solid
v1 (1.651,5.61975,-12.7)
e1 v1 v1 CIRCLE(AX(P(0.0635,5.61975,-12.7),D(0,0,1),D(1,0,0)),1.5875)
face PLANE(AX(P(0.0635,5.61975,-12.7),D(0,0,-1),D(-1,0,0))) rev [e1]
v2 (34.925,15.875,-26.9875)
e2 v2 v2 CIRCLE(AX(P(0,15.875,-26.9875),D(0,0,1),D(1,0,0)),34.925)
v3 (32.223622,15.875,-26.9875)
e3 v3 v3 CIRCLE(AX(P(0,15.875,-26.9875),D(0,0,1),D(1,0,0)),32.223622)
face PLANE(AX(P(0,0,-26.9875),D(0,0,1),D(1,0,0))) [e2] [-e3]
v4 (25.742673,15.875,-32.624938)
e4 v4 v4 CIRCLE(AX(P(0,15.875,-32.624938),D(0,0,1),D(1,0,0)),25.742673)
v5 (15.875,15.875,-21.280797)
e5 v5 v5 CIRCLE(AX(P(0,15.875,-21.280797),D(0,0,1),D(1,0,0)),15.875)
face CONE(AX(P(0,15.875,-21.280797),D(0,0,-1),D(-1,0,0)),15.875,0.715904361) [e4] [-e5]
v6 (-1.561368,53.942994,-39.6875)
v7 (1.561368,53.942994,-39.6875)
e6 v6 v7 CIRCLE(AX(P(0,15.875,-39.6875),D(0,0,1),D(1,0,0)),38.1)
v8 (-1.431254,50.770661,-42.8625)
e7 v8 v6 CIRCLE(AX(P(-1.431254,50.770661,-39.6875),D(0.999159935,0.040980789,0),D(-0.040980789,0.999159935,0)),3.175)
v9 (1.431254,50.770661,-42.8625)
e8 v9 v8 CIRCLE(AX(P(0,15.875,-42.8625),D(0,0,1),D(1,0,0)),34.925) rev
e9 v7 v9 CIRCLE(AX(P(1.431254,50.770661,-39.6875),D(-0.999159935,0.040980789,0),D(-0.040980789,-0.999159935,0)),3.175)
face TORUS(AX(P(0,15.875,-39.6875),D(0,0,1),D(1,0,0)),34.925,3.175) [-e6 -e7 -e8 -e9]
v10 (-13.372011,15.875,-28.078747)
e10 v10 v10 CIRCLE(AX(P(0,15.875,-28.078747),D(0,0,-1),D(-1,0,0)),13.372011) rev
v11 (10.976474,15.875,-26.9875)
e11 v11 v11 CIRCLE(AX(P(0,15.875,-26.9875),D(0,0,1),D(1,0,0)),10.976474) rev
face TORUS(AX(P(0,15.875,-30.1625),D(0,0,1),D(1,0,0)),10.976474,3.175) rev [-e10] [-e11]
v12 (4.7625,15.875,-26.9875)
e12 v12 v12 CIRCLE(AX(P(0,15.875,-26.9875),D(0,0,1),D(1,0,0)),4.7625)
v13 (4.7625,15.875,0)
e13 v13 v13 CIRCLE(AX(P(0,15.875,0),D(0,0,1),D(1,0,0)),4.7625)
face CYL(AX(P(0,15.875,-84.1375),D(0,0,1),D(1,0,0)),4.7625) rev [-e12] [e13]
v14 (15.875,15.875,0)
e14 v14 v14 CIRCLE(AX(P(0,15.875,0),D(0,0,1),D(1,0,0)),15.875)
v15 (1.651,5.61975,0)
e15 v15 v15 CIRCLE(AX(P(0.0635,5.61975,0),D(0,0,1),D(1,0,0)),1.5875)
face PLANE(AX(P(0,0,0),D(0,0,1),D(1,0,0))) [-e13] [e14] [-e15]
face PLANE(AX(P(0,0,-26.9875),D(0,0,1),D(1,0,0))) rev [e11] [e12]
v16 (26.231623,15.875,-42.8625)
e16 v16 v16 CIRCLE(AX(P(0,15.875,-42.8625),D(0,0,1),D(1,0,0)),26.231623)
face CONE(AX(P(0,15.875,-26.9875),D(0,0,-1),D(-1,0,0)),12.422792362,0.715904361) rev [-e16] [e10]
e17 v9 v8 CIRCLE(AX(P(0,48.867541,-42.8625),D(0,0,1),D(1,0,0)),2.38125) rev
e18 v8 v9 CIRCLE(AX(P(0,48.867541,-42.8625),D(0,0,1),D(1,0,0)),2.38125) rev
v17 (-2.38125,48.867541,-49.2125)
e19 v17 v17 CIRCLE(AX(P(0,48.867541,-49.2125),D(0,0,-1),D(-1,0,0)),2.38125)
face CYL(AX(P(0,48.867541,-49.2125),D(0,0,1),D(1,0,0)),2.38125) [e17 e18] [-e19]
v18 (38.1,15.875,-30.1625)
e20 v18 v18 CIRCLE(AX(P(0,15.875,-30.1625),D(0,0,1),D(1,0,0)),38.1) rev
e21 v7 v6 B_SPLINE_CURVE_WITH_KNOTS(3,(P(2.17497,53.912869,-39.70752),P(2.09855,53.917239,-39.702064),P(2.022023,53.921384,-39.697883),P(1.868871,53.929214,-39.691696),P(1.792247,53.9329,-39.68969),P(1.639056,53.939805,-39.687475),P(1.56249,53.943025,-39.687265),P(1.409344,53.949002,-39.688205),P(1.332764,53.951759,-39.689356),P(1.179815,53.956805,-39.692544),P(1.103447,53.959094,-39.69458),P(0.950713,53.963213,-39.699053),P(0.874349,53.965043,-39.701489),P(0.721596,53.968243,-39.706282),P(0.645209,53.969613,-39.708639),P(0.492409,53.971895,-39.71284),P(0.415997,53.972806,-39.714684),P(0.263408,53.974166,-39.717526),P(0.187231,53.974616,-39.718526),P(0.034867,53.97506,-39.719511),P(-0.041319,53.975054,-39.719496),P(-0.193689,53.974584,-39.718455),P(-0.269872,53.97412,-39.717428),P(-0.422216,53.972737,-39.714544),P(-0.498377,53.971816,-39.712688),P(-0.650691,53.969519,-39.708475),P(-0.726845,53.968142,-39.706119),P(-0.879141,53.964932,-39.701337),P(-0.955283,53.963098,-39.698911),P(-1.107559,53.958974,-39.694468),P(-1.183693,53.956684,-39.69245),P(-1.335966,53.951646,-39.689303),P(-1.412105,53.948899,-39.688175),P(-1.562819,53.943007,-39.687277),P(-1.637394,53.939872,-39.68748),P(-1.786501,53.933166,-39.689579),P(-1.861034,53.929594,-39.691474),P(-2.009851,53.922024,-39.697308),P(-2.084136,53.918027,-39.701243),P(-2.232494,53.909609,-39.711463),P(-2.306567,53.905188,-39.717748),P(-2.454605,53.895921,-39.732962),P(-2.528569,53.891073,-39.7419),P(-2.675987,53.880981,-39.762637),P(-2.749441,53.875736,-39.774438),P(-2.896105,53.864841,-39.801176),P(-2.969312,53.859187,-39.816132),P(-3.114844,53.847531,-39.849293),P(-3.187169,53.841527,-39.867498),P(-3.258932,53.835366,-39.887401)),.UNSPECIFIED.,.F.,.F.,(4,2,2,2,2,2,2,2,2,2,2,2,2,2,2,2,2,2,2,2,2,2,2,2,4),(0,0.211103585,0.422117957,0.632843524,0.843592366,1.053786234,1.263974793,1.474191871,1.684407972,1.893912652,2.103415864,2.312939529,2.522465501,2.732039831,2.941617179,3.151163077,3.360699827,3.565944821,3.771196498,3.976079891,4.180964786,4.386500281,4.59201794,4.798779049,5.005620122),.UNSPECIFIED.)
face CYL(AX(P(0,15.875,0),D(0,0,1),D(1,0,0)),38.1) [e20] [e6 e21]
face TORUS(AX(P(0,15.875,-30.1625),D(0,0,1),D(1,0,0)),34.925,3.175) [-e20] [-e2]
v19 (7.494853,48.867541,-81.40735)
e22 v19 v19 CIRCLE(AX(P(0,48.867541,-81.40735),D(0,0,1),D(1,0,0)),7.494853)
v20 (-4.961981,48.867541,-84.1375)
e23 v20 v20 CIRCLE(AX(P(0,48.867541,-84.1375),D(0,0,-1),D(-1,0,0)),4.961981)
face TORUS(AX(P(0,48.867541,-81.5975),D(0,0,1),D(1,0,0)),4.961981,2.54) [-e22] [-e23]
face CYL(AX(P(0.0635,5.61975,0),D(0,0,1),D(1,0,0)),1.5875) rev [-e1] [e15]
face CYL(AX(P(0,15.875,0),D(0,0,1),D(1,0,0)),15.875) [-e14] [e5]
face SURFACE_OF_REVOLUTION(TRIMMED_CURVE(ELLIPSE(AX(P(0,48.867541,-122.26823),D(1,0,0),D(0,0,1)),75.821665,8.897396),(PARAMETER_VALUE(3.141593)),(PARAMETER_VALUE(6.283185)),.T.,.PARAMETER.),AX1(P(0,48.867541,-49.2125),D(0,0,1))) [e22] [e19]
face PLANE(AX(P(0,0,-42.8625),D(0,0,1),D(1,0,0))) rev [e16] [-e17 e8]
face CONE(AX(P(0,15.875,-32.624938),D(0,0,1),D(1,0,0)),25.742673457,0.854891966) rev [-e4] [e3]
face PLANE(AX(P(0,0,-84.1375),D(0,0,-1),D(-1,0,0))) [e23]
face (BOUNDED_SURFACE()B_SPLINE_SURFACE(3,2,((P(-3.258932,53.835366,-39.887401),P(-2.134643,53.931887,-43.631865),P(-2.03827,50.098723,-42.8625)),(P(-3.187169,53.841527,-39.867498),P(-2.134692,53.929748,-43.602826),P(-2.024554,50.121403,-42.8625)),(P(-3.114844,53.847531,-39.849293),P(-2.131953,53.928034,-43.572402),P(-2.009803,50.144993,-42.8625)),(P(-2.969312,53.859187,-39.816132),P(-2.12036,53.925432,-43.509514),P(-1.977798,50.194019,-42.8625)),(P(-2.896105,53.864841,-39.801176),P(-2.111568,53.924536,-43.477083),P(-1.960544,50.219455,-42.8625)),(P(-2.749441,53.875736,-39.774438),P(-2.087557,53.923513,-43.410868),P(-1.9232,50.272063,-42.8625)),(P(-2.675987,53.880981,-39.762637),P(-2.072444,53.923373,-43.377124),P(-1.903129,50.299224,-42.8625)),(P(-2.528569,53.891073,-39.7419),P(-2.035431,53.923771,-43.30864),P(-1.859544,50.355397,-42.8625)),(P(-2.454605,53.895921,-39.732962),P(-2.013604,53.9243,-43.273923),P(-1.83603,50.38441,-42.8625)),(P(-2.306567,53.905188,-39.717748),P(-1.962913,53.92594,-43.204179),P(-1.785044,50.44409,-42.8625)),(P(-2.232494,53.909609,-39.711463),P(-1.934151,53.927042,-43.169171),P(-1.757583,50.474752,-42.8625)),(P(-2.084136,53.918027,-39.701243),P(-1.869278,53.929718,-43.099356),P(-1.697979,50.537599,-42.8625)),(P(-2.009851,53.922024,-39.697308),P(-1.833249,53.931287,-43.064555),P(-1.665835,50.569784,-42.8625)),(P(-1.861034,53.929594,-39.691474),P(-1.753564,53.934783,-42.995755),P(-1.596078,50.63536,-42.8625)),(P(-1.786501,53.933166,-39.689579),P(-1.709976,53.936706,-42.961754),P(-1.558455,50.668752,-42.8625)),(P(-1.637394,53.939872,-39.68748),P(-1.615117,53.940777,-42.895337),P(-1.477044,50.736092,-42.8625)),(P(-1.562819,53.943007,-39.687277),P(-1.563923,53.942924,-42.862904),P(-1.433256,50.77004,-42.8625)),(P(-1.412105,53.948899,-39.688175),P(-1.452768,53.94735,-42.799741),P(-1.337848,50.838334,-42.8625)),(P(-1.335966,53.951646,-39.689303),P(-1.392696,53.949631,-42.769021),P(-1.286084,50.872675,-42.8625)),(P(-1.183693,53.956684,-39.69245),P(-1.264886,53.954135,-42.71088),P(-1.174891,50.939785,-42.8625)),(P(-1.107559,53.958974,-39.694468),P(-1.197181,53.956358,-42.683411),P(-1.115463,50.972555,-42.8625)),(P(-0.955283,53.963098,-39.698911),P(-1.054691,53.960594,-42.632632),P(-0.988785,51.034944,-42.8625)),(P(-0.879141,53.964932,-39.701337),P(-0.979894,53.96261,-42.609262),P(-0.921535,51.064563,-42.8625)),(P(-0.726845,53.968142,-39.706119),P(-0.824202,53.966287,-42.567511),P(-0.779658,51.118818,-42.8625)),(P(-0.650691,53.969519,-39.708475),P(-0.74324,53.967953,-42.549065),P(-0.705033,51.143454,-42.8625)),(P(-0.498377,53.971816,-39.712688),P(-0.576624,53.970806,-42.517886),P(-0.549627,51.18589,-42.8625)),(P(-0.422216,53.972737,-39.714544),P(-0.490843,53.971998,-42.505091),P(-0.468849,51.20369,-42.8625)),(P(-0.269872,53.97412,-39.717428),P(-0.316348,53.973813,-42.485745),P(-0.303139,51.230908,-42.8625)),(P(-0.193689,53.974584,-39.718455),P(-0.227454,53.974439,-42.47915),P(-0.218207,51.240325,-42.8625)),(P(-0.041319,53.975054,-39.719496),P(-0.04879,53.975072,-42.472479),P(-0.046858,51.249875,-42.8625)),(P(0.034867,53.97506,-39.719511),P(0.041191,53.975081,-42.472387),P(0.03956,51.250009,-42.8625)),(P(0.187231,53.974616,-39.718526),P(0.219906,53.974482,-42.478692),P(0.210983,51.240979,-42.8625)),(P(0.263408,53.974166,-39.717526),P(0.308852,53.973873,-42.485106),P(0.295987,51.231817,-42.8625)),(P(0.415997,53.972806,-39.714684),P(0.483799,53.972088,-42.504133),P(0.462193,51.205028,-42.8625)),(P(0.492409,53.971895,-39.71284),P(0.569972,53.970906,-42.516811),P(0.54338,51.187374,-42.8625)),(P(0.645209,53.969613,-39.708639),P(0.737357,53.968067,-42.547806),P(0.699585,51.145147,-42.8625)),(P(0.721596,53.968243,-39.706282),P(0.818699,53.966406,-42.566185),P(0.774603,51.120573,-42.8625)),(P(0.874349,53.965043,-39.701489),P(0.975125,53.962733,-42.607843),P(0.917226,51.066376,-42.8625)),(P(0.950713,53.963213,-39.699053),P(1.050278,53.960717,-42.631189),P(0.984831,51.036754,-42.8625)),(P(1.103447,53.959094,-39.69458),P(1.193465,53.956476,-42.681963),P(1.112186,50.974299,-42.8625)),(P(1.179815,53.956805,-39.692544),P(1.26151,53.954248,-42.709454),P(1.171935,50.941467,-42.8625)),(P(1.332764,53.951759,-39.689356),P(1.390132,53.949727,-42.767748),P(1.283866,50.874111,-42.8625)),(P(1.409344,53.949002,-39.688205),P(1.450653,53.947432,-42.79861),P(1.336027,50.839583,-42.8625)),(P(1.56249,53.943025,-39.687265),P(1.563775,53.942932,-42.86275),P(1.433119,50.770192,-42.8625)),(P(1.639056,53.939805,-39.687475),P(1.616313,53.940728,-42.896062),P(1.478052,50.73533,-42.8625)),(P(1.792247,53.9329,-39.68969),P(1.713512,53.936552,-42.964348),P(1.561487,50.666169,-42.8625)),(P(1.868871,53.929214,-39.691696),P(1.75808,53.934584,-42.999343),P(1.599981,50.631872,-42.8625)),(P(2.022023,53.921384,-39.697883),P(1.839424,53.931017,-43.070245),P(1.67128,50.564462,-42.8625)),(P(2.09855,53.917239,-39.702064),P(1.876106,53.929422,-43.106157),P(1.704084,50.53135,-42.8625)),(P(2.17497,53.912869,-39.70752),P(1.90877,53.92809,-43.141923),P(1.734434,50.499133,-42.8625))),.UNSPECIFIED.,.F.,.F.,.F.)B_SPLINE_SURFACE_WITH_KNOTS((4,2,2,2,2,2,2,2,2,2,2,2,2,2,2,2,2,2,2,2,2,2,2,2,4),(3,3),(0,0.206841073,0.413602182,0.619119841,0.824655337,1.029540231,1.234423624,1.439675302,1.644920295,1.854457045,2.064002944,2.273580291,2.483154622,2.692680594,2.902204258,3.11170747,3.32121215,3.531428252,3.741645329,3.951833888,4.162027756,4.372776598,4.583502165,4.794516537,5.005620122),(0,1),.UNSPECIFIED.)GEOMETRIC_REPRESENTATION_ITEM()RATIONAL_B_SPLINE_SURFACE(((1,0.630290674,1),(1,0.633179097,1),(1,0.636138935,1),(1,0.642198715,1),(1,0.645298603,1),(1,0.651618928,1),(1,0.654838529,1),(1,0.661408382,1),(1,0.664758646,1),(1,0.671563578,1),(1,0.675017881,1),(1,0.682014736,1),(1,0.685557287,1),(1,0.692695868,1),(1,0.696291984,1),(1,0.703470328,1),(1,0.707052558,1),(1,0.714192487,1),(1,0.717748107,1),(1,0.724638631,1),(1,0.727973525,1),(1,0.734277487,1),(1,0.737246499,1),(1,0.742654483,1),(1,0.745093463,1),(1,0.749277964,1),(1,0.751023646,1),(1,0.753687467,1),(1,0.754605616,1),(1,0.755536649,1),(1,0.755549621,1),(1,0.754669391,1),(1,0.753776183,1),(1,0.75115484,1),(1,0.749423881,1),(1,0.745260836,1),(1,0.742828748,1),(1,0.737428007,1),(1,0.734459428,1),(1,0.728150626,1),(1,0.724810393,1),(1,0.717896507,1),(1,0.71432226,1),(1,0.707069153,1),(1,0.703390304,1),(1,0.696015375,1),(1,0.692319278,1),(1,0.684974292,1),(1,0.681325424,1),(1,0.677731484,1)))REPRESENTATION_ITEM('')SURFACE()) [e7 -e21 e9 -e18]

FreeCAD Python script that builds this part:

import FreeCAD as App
import Part
import Sketcher
Q = App.Units.Quantity


def edges_at(feature, points):
    """Names of the edges that pass closest to the given points."""
    edges = feature.Shape.Edges
    near = lambda p: min(range(len(edges)), key=lambda i: edges[i].distToShape(Part.Vertex(*p))[0])
    return sorted({f"Edge{near(p) + 1}" for p in points})

doc = App.newDocument("Part")
body = doc.addObject("PartDesign::Body", "Body")

# Sketch on YZ plane
sketch1 = body.newObject("Sketcher::SketchObject", "Sketch")
sketch1.AttachmentSupport = (doc.getObject("YZ_Plane"), [""])
sketch1.MapMode = "FlatFace"
sketch1.addGeometry(Part.LineSegment(App.Vector(41.6, -32.6, 0), App.Vector(31.8, -21.3, 0)), False)
sketch1.addGeometry(Part.LineSegment(App.Vector(31.8, -21.3, 0), App.Vector(31.8, 0, 0)), False)
sketch1.addGeometry(Part.LineSegment(App.Vector(31.8, 0, 0), App.Vector(18.4, 0, 0)), False)
sketch1.addGeometry(Part.LineSegment(App.Vector(18.4, 0, 0), App.Vector(18.4, -12.7, 0)), False)
sketch1.addGeometry(Part.LineSegment(App.Vector(18.4, -12.7, 0), App.Vector(15.9, -12.7, 0)), False)
sketch1.addGeometry(Part.LineSegment(App.Vector(15.9, -12.7, 0), App.Vector(15.9, -27, 0)), False)
sketch1.addGeometry(Part.LineSegment(App.Vector(15.9, -27, 0), App.Vector(28.3, -27, 0)), False)
sketch1.addGeometry(Part.LineSegment(App.Vector(28.3, -27, 0), App.Vector(42.1, -42.9, 0)), False)
sketch1.addGeometry(Part.LineSegment(App.Vector(42.1, -42.9, 0), App.Vector(54, -42.9, 0)), False)
sketch1.addGeometry(Part.LineSegment(App.Vector(54, -42.9, 0), App.Vector(54, -27, 0)), False)
sketch1.addGeometry(Part.LineSegment(App.Vector(54, -27, 0), App.Vector(48.1, -27, 0)), False)
sketch1.addGeometry(Part.LineSegment(App.Vector(48.1, -27, 0), App.Vector(41.6, -32.6, 0)), False)
sketch1.addGeometry(Part.LineSegment(App.Vector(15.9, 0, 0), App.Vector(15.9, -42.9, 0)), True)  # axis
sketch1.addConstraint(Sketcher.Constraint("Coincident", 0, 2, 1, 1))
sketch1.addConstraint(Sketcher.Constraint("Coincident", 1, 2, 2, 1))
sketch1.addConstraint(Sketcher.Constraint("Coincident", 2, 2, 3, 1))
sketch1.addConstraint(Sketcher.Constraint("Coincident", 3, 2, 4, 1))
sketch1.addConstraint(Sketcher.Constraint("Coincident", 4, 2, 5, 1))
sketch1.addConstraint(Sketcher.Constraint("Coincident", 5, 2, 6, 1))
sketch1.addConstraint(Sketcher.Constraint("Coincident", 6, 2, 7, 1))
sketch1.addConstraint(Sketcher.Constraint("Coincident", 7, 2, 8, 1))
sketch1.addConstraint(Sketcher.Constraint("Coincident", 8, 2, 9, 1))
sketch1.addConstraint(Sketcher.Constraint("Coincident", 9, 2, 10, 1))
sketch1.addConstraint(Sketcher.Constraint("Coincident", 10, 2, 11, 1))
sketch1.addConstraint(Sketcher.Constraint("Coincident", 11, 2, 0, 1))
sketch1.addConstraint(Sketcher.Constraint("Vertical", 1))
sketch1.addConstraint(Sketcher.Constraint("Horizontal", 2))
sketch1.addConstraint(Sketcher.Constraint("Vertical", 3))
sketch1.addConstraint(Sketcher.Constraint("Horizontal", 4))
sketch1.addConstraint(Sketcher.Constraint("Vertical", 5))
sketch1.addConstraint(Sketcher.Constraint("Horizontal", 6))
sketch1.addConstraint(Sketcher.Constraint("Horizontal", 8))
sketch1.addConstraint(Sketcher.Constraint("Vertical", 9))
sketch1.addConstraint(Sketcher.Constraint("Horizontal", 10))
sketch1.addConstraint(Sketcher.Constraint("Vertical", 12))
sketch1.addConstraint(Sketcher.Constraint("PointOnObject", 1, 2, -1))
sketch1.addConstraint(Sketcher.Constraint("PointOnObject", 12, 1, -1))
sketch1.addConstraint(Sketcher.Constraint("Parallel", 0, 7))
sketch1.addConstraint(Sketcher.Constraint("Perpendicular", 7, 11))
sketch1.addConstraint(Sketcher.Constraint("Horizontal", 6, 2, 9, 2))
sketch1.addConstraint(Sketcher.Constraint("Horizontal", 8, 2, 12, 2))
sketch1.addConstraint(Sketcher.Constraint("Vertical", 5, 2, 12, 1))
sketch1.addConstraint(Sketcher.Constraint("DistanceX", 4, 2, 4, 1, Q("0.1 in")))
sketch1.addConstraint(Sketcher.Constraint("DistanceY", 3, 2, 3, 1, Q("0.5 in")))
sketch1.addConstraint(Sketcher.Constraint("DistanceX", 5, 2, 8, 2, Q("1.5 in")))
sketch1.addConstraint(Sketcher.Constraint("DistanceX", 2, 2, 2, 1, Q("0.525 in")))
sketch1.addConstraint(Sketcher.Constraint("DistanceY", 5, 2, 5, 1, Q("0.5625 in")))
sketch1.addConstraint(Sketcher.Constraint("DistanceY", 9, 1, 9, 2, Q("0.625 in")))
sketch1.addConstraint(Sketcher.Constraint("DistanceX", -1, 1, 0, 2, Q("1.25 in")))
sketch1.addConstraint(Sketcher.Constraint("DistanceX", 7, 2, 10, 2, 5.991999))
sketch1.addConstraint(Sketcher.Constraint("Distance", 0, 15.035309))
sketch1.addConstraint(Sketcher.Constraint("DistanceX", 6, 1, 6, 2, 12.422792))
sketch1.addConstraint(Sketcher.Constraint("DistanceX", 8, 1, 8, 2, 11.868377))
revolution = body.newObject("PartDesign::Revolution", "Revolution")
revolution.Profile = sketch1
revolution.ReferenceAxis = (sketch1, ["Axis0"])
revolution.Angle = 360

# Sketch on XY plane
sketch2 = body.newObject("Sketcher::SketchObject", "Sketch001")
sketch2.AttachmentSupport = (doc.getObject("XY_Plane"), [""])
sketch2.MapMode = "FlatFace"
sketch2.AttachmentOffset = App.Placement(App.Vector(0, 0, -1.6875 * 25.4), App.Rotation())
sketch2.addGeometry(Part.Circle(App.Vector(0, 48.9, 0), App.Vector(0, 0, 1), 2.4), False)
sketch2.addConstraint(Sketcher.Constraint("PointOnObject", 0, 3, -2))
sketch2.addConstraint(Sketcher.Constraint("Diameter", 0, Q("0.1875 in")))
sketch2.addConstraint(Sketcher.Constraint("DistanceY", -1, 1, 0, 3, 48.867541))
pad1 = body.newObject("PartDesign::Pad", "Pad")
pad1.Profile = sketch2
pad1.Length = Q("0.25 in")
pad1.Reversed = True

# Sketch on YZ plane
sketch3 = body.newObject("Sketcher::SketchObject", "Sketch002")
sketch3.AttachmentSupport = (doc.getObject("YZ_Plane"), [""])
sketch3.MapMode = "FlatFace"
sketch3.addGeometry(Part.BSplineCurve([App.Vector(56.557957, -84.1375, 0), App.Vector(54.73721, -57.469839, 0), App.Vector(51.248791, -49.2125, 0)], [3, 3], [5.239339857, 6.012248194], False, 2, [1, 0.926251327, 1], False), False)
sketch3.addGeometry(Part.LineSegment(App.Vector(51.248791, -49.2125, 0), App.Vector(48.867541, -49.2125, 0)), False)
sketch3.addGeometry(Part.LineSegment(App.Vector(48.867541, -49.2125, 0), App.Vector(48.867541, -84.1375, 0)), False)
sketch3.addGeometry(Part.LineSegment(App.Vector(48.867541, -84.1375, 0), App.Vector(56.557957, -84.1375, 0)), False)
sketch3.addGeometry(Part.LineSegment(App.Vector(48.867541, -49.2125, 0), App.Vector(48.867541, -84.1375, 0)), True)  # axis
sketch3.addConstraint(Sketcher.Constraint("Block", 0))
sketch3.addConstraint(Sketcher.Constraint("Coincident", 0, 2, 1, 1))
sketch3.addConstraint(Sketcher.Constraint("Coincident", 1, 2, 2, 1))
sketch3.addConstraint(Sketcher.Constraint("Coincident", 2, 2, 3, 1))
sketch3.addConstraint(Sketcher.Constraint("Coincident", 3, 2, 0, 1))
sketch3.addConstraint(Sketcher.Constraint("Horizontal", 1))
sketch3.addConstraint(Sketcher.Constraint("Vertical", 2))
sketch3.addConstraint(Sketcher.Constraint("Horizontal", 3))
sketch3.addConstraint(Sketcher.Constraint("Vertical", 4))
sketch3.addConstraint(Sketcher.Constraint("Coincident", 4, 1, 1, 2))
sketch3.addConstraint(Sketcher.Constraint("Horizontal", 3, 2, 4, 2))
sketch3.addConstraint(Sketcher.Constraint("DistanceX", 1, 2, 1, 1, Q("0.09375 in")))
revolution2 = body.newObject("PartDesign::Revolution", "Revolution001")
revolution2.Profile = sketch3
revolution2.ReferenceAxis = (sketch3, ["Axis0"])
revolution2.Angle = 360
doc.recompute()

fillet = body.newObject("PartDesign::Fillet", "Fillet")
fillet.Base = (revolution2, edges_at(revolution2, [(0, 41.177, -84.138)]))
fillet.Radius = Q("0.1 in")
doc.recompute()

fillet2 = body.newObject("PartDesign::Fillet", "Fillet001")
fillet2.Base = (fillet, edges_at(fillet, [(-38.1, 15.875, -26.988), (-38.1, 15.875, -42.862), (-12.423, 15.875, -26.988)]))
fillet2.Radius = Q("0.125 in")

# Sketch on XY plane
sketch4 = body.newObject("Sketcher::SketchObject", "Sketch003")
sketch4.AttachmentSupport = (doc.getObject("XY_Plane"), [""])
sketch4.MapMode = "FlatFace"
sketch4.addGeometry(Part.Circle(App.Vector(0, 15.9, 0), App.Vector(0, 0, 1), 4.8), False)
sketch4.addConstraint(Sketcher.Constraint("PointOnObject", 0, 3, -2))
sketch4.addConstraint(Sketcher.Constraint("Diameter", 0, Q("0.375 in")))
sketch4.addConstraint(Sketcher.Constraint("DistanceY", -1, 1, 0, 3, Q("0.625 in")))
pocket1 = body.newObject("PartDesign::Pocket", "Pocket")
pocket1.Profile = sketch4
pocket1.Type = "ThroughAll"

# Sketch on XY plane
sketch5 = body.newObject("Sketcher::SketchObject", "Sketch004")
sketch5.AttachmentSupport = (doc.getObject("XY_Plane"), [""])
sketch5.MapMode = "FlatFace"
sketch5.addGeometry(Part.Circle(App.Vector(0.1, 5.6, 0), App.Vector(0, 0, 1), 1.6), False)
sketch5.addConstraint(Sketcher.Constraint("Diameter", 0, Q("0.125 in")))
sketch5.addConstraint(Sketcher.Constraint("DistanceX", -1, 1, 0, 3, Q("0.0025 in")))
sketch5.addConstraint(Sketcher.Constraint("DistanceY", -1, 1, 0, 3, 5.61975))
doc.recompute()
hole = body.newObject("PartDesign::Hole", "Hole")
hole.Profile = sketch5
hole.ThreadType = "None"
hole.Diameter = Q("0.125 in")
hole.DepthType = "Dimension"
hole.Depth = Q("0.5 in")
hole.DrillPoint = "Flat"

doc.recompute()
